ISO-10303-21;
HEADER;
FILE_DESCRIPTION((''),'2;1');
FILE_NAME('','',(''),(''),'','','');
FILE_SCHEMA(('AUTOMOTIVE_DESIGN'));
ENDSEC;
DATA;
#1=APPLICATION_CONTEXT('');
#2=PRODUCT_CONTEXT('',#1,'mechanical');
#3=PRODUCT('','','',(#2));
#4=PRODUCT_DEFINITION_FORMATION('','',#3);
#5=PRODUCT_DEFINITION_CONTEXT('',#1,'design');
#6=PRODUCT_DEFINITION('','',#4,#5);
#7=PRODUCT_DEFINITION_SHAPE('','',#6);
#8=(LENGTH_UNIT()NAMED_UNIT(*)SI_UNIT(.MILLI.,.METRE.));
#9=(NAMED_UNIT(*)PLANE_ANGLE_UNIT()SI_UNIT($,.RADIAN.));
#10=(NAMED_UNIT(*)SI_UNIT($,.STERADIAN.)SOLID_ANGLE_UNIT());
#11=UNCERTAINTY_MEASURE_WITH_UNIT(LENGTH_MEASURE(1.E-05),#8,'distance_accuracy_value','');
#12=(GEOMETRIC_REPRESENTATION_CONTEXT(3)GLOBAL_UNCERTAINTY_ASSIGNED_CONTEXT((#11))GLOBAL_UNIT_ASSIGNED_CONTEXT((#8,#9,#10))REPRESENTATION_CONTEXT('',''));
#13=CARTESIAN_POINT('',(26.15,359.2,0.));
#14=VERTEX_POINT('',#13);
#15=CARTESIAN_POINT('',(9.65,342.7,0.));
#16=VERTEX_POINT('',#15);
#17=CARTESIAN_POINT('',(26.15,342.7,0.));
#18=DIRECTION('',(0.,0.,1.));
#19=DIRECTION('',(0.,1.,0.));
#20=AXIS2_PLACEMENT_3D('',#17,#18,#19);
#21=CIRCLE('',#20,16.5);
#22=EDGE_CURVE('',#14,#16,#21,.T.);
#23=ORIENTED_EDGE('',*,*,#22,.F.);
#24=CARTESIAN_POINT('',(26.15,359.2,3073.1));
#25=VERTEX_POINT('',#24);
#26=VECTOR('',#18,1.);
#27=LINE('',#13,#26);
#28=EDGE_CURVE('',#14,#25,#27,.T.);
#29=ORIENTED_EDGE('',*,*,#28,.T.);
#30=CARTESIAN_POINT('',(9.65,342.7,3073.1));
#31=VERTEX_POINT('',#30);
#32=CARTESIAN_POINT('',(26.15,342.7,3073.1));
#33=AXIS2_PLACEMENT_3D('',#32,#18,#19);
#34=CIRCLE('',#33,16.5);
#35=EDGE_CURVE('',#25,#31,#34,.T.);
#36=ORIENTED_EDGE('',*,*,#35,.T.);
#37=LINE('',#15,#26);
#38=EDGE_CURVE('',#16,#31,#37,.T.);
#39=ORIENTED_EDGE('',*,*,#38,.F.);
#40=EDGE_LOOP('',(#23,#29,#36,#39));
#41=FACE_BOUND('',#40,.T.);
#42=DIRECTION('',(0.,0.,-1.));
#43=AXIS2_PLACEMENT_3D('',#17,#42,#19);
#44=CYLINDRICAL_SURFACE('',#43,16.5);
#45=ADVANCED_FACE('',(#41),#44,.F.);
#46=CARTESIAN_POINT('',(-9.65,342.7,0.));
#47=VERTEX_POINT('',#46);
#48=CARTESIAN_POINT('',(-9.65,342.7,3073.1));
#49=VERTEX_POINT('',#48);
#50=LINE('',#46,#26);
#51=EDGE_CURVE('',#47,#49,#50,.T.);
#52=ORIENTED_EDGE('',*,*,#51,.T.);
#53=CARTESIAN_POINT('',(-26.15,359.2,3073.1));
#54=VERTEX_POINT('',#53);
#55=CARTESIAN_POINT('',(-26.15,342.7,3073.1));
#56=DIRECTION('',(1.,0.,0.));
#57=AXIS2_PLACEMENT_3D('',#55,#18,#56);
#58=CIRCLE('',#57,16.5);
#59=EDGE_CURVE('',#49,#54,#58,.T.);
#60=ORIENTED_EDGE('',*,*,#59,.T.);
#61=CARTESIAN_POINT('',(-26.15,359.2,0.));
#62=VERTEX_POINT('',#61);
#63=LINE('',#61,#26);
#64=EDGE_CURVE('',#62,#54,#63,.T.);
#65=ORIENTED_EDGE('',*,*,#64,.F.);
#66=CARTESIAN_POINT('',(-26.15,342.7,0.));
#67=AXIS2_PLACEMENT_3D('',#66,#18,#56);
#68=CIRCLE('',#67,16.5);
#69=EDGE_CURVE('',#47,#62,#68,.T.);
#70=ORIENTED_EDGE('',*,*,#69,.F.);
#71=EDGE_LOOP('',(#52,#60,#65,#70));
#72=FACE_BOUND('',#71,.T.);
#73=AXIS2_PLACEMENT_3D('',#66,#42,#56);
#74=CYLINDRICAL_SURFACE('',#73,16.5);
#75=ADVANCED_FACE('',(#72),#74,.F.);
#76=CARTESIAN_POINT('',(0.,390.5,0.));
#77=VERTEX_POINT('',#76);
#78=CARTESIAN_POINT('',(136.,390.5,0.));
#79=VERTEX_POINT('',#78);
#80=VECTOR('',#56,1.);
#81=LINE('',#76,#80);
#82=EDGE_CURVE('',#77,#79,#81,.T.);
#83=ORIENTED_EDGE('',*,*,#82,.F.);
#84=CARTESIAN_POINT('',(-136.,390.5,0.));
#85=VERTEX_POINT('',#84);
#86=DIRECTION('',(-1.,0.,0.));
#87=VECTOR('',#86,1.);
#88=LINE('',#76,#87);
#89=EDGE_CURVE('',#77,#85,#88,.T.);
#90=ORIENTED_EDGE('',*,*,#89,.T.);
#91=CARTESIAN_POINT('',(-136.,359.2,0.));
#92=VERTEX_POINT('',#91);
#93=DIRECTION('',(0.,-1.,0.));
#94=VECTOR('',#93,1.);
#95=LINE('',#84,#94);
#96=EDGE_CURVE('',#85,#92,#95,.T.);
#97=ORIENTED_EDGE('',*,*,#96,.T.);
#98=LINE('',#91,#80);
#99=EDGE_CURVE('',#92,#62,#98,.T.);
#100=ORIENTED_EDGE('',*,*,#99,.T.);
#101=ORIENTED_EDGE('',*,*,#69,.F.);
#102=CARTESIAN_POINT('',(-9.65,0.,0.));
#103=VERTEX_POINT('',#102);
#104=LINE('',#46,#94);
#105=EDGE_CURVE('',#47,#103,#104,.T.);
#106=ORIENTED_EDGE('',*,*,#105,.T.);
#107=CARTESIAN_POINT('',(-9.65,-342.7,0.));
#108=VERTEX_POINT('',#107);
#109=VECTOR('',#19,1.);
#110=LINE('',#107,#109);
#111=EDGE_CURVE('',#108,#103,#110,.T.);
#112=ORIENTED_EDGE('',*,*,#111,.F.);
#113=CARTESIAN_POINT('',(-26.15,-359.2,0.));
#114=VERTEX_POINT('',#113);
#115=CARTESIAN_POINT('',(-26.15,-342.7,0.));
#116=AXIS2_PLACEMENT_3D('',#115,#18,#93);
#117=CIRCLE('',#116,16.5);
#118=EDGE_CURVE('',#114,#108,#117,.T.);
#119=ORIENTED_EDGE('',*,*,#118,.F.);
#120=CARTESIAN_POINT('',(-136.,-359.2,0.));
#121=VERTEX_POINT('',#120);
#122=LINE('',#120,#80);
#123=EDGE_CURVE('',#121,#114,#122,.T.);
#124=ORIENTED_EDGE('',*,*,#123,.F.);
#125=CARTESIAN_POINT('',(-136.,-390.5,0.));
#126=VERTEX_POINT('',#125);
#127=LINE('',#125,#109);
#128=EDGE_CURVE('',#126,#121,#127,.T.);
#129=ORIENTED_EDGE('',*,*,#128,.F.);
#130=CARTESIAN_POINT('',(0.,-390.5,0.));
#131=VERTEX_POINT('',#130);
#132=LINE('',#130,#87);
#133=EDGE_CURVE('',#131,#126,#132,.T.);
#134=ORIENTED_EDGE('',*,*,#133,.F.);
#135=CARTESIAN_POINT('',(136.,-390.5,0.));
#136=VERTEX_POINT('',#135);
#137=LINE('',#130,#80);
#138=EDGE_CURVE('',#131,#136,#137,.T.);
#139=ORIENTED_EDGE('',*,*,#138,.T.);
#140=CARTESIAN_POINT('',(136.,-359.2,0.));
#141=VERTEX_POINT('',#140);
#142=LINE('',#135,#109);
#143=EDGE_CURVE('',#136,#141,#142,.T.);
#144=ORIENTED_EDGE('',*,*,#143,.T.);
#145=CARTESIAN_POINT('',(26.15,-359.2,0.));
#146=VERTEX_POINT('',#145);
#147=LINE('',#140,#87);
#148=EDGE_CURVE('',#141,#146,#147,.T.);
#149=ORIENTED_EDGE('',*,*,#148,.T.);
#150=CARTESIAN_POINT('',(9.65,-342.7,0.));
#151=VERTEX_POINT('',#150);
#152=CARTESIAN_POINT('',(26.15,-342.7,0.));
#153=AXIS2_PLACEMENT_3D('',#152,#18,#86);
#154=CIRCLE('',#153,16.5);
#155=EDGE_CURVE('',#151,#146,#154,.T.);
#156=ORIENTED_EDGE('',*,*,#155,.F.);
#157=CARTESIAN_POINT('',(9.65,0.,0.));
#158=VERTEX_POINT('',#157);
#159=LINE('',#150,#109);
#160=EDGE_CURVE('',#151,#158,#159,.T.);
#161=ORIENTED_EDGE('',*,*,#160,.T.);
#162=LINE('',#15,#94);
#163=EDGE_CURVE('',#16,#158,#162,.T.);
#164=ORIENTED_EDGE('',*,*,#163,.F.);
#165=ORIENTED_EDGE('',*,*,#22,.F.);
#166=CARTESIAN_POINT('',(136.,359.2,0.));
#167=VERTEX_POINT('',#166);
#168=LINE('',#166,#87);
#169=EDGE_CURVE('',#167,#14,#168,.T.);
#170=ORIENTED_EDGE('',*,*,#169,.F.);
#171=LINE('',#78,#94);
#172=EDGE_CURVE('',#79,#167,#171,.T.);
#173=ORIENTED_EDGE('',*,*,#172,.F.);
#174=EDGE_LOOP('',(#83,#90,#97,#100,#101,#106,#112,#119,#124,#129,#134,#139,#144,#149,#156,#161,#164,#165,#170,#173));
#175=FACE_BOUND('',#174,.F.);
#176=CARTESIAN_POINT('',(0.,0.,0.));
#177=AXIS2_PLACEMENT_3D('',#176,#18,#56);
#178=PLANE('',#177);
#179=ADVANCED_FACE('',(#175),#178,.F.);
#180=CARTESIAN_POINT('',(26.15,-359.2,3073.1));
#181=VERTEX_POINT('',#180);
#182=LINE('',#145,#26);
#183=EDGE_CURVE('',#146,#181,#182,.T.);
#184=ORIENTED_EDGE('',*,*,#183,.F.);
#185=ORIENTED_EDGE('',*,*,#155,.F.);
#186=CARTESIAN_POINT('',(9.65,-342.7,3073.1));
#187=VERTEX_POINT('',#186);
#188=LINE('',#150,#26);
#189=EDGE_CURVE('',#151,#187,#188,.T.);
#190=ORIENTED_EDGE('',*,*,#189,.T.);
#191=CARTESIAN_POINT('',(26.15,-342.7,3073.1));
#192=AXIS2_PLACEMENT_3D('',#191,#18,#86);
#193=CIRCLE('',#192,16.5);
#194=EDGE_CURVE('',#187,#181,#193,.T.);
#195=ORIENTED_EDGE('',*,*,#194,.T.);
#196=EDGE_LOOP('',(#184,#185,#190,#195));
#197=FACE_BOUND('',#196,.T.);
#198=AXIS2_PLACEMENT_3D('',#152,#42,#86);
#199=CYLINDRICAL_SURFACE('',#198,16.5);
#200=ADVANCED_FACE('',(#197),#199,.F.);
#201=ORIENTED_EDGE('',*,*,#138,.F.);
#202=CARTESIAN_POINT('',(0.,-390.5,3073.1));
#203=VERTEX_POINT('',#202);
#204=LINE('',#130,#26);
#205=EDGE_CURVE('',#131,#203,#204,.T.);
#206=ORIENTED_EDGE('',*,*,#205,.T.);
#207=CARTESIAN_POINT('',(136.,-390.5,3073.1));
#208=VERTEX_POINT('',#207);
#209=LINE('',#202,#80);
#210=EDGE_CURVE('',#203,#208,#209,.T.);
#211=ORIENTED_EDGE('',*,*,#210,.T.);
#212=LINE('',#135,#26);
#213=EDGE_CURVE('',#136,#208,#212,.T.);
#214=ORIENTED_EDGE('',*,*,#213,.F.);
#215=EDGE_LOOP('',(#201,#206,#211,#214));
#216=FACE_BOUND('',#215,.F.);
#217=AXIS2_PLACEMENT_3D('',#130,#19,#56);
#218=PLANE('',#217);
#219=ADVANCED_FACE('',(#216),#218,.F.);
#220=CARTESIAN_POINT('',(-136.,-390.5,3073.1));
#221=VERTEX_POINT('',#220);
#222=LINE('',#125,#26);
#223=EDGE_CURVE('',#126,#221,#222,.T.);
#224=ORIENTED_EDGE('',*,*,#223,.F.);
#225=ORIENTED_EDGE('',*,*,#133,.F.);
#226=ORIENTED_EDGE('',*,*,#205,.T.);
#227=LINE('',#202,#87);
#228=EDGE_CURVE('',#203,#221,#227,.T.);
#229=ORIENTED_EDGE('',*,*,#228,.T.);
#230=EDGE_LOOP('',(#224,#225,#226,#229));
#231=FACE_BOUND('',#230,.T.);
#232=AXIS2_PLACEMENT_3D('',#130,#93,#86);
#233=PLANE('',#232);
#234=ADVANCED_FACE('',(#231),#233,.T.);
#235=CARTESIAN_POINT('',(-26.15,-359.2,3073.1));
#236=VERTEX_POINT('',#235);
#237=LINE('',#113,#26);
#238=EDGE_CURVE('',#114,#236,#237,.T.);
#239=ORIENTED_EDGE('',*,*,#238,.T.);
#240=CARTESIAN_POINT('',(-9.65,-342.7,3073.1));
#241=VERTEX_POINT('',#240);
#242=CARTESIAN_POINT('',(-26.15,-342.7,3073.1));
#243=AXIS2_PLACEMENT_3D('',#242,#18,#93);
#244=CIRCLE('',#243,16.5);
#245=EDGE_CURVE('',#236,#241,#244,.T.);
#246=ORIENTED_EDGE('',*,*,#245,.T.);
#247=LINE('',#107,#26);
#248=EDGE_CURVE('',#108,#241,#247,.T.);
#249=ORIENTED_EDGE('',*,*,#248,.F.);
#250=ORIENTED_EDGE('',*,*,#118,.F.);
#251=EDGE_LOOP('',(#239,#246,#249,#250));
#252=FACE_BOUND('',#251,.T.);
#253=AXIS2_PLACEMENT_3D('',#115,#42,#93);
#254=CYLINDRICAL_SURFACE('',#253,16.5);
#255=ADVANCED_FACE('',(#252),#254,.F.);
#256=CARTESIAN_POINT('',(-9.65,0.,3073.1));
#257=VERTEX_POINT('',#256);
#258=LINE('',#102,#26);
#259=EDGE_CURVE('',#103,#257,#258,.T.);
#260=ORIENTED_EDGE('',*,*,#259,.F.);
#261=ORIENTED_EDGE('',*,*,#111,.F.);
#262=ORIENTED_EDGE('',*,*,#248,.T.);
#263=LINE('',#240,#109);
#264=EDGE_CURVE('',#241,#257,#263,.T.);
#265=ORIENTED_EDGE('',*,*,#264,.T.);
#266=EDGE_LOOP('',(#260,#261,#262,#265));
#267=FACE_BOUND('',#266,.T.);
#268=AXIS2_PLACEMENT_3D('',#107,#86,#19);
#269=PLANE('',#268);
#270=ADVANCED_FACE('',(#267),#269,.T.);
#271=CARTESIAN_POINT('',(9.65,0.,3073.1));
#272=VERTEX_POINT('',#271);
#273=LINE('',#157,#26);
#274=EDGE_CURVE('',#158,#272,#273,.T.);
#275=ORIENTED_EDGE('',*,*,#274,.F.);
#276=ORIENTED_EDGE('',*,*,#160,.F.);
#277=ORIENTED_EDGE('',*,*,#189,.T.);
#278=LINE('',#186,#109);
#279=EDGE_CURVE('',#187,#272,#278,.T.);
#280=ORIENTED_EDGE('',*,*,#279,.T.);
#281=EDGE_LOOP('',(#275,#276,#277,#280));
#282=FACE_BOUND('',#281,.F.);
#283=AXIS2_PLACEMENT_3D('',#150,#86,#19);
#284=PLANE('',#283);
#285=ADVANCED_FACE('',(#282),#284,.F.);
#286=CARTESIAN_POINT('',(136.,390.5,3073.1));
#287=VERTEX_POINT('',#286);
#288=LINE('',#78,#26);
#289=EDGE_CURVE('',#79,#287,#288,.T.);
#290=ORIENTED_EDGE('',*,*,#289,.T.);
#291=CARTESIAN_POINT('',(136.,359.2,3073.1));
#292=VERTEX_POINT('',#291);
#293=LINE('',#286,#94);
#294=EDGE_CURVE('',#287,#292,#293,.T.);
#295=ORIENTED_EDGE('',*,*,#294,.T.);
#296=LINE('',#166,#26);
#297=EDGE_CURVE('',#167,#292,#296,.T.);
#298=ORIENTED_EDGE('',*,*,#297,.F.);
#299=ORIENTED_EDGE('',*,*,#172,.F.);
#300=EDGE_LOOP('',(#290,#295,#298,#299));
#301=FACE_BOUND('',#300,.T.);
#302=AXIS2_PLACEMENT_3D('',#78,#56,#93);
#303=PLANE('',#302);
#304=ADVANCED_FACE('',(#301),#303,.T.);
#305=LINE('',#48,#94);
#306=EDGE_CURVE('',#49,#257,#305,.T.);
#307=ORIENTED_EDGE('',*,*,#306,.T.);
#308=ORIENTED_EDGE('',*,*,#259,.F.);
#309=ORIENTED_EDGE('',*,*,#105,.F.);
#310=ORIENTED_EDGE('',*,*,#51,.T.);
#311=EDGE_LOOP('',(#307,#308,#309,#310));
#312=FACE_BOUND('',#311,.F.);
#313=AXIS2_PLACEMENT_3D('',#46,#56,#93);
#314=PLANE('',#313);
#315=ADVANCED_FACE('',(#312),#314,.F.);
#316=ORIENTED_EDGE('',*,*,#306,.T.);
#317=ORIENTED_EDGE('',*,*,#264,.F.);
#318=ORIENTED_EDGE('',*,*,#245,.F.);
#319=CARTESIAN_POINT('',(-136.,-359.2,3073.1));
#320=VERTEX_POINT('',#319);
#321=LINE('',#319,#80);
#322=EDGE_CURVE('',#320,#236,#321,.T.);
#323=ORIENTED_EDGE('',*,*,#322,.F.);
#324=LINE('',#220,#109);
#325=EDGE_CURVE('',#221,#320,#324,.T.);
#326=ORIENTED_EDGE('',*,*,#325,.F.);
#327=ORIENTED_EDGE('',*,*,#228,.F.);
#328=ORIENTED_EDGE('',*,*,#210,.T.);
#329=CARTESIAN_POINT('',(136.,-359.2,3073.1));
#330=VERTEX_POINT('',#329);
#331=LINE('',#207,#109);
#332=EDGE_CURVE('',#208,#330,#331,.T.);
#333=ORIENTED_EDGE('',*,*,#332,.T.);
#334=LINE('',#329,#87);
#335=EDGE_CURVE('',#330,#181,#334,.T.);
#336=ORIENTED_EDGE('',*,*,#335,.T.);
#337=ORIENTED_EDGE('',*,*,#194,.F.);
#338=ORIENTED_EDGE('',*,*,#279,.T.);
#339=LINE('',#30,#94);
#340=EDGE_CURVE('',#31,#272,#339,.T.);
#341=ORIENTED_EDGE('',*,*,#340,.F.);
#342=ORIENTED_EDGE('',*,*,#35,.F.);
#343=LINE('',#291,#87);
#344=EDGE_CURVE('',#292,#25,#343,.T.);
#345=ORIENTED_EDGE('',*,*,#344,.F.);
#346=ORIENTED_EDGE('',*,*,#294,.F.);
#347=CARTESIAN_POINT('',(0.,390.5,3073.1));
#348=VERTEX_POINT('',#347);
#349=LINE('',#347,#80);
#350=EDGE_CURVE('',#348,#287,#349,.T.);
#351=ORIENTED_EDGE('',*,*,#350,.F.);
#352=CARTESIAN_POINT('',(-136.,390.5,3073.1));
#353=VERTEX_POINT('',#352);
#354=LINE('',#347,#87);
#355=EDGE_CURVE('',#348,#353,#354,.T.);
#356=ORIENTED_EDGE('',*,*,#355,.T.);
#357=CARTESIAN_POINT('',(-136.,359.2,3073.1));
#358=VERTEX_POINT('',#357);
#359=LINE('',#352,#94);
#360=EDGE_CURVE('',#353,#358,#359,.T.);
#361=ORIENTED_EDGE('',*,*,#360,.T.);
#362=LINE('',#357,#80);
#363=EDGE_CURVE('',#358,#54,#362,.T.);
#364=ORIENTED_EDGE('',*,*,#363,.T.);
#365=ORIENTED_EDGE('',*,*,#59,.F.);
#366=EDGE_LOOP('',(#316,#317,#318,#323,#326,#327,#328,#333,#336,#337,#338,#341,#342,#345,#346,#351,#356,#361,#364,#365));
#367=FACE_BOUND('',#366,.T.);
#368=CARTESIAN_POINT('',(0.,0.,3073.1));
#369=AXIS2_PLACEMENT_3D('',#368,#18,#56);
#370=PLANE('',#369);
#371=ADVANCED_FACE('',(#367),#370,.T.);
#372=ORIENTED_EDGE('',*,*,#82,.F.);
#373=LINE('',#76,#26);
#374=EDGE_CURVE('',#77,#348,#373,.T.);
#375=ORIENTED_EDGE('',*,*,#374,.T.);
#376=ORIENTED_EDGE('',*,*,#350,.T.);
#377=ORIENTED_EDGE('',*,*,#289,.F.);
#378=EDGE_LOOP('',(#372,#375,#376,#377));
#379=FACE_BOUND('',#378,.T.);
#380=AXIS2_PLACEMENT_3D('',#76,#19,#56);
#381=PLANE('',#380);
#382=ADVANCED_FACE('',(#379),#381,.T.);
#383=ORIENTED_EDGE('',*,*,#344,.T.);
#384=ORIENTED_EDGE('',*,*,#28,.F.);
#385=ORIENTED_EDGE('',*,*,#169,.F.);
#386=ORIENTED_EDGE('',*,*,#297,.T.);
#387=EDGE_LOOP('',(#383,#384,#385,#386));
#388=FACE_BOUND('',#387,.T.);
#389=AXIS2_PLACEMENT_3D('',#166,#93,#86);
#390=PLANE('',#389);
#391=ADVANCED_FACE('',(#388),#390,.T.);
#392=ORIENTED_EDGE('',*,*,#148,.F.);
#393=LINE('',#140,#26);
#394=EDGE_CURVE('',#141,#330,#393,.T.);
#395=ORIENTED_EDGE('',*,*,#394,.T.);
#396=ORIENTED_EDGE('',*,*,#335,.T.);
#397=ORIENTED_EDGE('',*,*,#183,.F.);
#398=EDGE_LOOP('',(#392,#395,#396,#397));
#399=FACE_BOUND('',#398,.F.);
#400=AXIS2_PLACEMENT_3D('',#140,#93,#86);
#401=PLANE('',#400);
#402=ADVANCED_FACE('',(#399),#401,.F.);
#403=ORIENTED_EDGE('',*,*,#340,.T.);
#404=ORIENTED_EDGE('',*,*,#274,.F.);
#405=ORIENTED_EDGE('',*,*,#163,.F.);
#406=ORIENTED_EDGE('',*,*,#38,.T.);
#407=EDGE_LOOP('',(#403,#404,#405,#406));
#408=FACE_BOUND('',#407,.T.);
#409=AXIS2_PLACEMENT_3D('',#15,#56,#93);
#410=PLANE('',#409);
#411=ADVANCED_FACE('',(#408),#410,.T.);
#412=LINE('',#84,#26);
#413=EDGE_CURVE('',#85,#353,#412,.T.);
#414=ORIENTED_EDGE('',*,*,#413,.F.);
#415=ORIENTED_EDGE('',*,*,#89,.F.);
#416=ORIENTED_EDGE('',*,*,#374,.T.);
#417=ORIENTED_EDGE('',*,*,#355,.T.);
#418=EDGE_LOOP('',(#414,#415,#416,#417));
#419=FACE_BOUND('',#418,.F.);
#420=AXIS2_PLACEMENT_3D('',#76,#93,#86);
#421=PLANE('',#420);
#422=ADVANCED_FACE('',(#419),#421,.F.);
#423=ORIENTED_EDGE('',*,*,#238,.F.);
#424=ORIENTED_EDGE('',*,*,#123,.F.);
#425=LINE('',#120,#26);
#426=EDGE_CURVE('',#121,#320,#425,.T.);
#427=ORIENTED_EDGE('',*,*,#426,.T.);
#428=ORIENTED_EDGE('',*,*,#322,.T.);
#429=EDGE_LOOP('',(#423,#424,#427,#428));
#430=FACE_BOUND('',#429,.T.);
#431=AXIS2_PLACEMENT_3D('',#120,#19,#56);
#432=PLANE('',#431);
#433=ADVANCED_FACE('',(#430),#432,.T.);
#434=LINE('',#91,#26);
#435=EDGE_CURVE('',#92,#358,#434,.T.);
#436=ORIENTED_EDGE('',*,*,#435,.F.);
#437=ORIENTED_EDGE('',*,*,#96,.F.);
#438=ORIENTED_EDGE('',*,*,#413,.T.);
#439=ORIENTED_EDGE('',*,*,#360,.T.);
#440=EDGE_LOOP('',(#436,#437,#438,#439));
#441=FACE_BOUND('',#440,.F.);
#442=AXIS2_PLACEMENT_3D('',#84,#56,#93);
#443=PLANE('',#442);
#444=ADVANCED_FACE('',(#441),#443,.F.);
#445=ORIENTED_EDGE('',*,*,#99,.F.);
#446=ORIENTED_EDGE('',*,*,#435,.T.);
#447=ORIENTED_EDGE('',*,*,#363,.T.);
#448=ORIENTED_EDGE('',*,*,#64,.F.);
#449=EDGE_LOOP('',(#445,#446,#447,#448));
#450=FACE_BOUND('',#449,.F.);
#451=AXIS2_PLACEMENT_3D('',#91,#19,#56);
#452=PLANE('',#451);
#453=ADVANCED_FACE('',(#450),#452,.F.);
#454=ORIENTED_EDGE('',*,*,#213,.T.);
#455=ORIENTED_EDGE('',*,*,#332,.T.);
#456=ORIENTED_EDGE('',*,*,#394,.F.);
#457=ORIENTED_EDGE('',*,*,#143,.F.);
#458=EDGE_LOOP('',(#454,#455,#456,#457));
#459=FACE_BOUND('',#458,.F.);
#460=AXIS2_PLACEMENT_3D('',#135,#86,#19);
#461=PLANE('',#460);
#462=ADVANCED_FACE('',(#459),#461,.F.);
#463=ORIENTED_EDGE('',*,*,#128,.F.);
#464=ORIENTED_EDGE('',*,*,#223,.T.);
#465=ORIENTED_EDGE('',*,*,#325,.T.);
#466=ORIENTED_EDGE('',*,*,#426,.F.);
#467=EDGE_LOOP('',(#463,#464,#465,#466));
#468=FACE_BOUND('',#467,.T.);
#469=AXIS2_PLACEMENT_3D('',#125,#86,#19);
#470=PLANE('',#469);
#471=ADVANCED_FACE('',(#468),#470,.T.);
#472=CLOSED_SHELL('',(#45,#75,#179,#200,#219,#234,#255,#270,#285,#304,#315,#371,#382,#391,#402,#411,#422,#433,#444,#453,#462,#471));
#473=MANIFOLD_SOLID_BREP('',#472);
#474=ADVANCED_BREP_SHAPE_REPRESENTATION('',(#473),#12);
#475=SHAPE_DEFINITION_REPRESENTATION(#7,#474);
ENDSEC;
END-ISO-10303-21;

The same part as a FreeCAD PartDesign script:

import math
import FreeCAD as App
import Part
import Sketcher

V = App.Vector

doc = App.newDocument("Part")
params = doc.addObject("Spreadsheet::Sheet", "Params")
for row, (alias, value) in enumerate([
    ("sketch1_radius", "16.5 mm"),
    ("sketch1_height", "31.3 mm"),
    ("pad1_length", "3073.1 mm"),
], start=1):
    params.set(f"A{row}", alias)
    params.set(f"B{row}", "=" + value)
    params.setAlias(f"B{row}", alias)

body = doc.addObject("PartDesign::Body", "Body")

# Sketch on XY plane
sketch1 = body.newObject("Sketcher::SketchObject", "Sketch")
sketch1.AttachmentSupport = (doc.getObject("XY_Plane"), [""])
sketch1.MapMode = "FlatFace"
sketch1.addGeometry([
    Part.LineSegment(V(-136, -359, 0), V(-136, -390, 0)),  # 0
    Part.LineSegment(V(-136, -390, 0), V(136, -390, 0)),  # 1
    Part.LineSegment(V(136, -390, 0), V(136, -359, 0)),  # 2
    Part.LineSegment(V(136, -359, 0), V(26, -359, 0)),  # 3
    Part.ArcOfCircle(Part.Circle(V(26, -343, 0), V(0, 0, 1), 16), math.radians(180), math.radians(270)),  # 4
    Part.LineSegment(V(10, -343, 0), V(10, 343, 0)),  # 5
    Part.ArcOfCircle(Part.Circle(V(26, 343, 0), V(0, 0, 1), 16), math.radians(90), math.radians(180)),  # 6
    Part.LineSegment(V(26, 359, 0), V(136, 359, 0)),  # 7
    Part.LineSegment(V(136, 359, 0), V(136, 390, 0)),  # 8
    Part.LineSegment(V(136, 390, 0), V(-136, 390, 0)),  # 9
    Part.LineSegment(V(-136, 390, 0), V(-136, 359, 0)),  # 10
    Part.LineSegment(V(-136, 359, 0), V(-26, 359, 0)),  # 11
    Part.ArcOfCircle(Part.Circle(V(-26, 343, 0), V(0, 0, 1), 16), math.radians(0), math.radians(90)),  # 12
    Part.LineSegment(V(-10, 343, 0), V(-10, -343, 0)),  # 13
    Part.ArcOfCircle(Part.Circle(V(-26, -343, 0), V(0, 0, 1), 16), math.radians(-90), math.radians(0)),  # 14
    Part.LineSegment(V(-26, -359, 0), V(-136, -359, 0)),  # 15
], False)
sketch1.addConstraint([
    Sketcher.Constraint("Coincident", 0, 2, 1, 1),
    Sketcher.Constraint("Coincident", 1, 2, 2, 1),
    Sketcher.Constraint("Coincident", 2, 2, 3, 1),
    Sketcher.Constraint("Tangent", 3, 2, 4, 2),
    Sketcher.Constraint("Tangent", 4, 1, 5, 1),
    Sketcher.Constraint("Tangent", 5, 2, 6, 2),
    Sketcher.Constraint("Tangent", 6, 1, 7, 1),
    Sketcher.Constraint("Coincident", 7, 2, 8, 1),
    Sketcher.Constraint("Coincident", 8, 2, 9, 1),
    Sketcher.Constraint("Coincident", 9, 2, 10, 1),
    Sketcher.Constraint("Coincident", 10, 2, 11, 1),
    Sketcher.Constraint("Tangent", 11, 2, 12, 2),
    Sketcher.Constraint("Tangent", 12, 1, 13, 1),
    Sketcher.Constraint("Tangent", 13, 2, 14, 2),
    Sketcher.Constraint("Tangent", 14, 1, 15, 1),
    Sketcher.Constraint("Coincident", 15, 2, 0, 1),
    Sketcher.Constraint("Vertical", 0),
    Sketcher.Constraint("Horizontal", 1),
    Sketcher.Constraint("Vertical", 2),
    Sketcher.Constraint("Horizontal", 3),
    Sketcher.Constraint("Vertical", 5),
    Sketcher.Constraint("Horizontal", 7),
    Sketcher.Constraint("Vertical", 8),
    Sketcher.Constraint("Horizontal", 9),
    Sketcher.Constraint("Vertical", 10),
    Sketcher.Constraint("Horizontal", 11),
    Sketcher.Constraint("Vertical", 13),
    Sketcher.Constraint("Horizontal", 15),
    Sketcher.Constraint("Equal", 4, 6),
    Sketcher.Constraint("Equal", 6, 12),
    Sketcher.Constraint("Equal", 12, 14),
    Sketcher.Constraint("Symmetric", 4, 3, 12, 3, -1, 1),
    Sketcher.Constraint("Symmetric", 0, 2, 8, 2, -1, 1),
    Sketcher.Constraint("Symmetric", 7, 2, 10, 2, -2),
    Sketcher.Constraint("Symmetric", 2, 2, 15, 2, -2),
    Sketcher.Constraint("Radius", 4, 16.5),
    Sketcher.Constraint("DistanceY", 0, 2, 0, 1, 31.3),
    Sketcher.Constraint("DistanceX", 0, 2, -1, 1, 136.0),
    Sketcher.Constraint("DistanceY", 0, 2, -1, 1, 390.5),
    Sketcher.Constraint("DistanceX", -1, 1, 4, 1, 9.65),
])
sketch1.setExpression("Constraints[35]", "Params.sketch1_radius")
sketch1.setExpression("Constraints[36]", "Params.sketch1_height")
pad1 = body.newObject("PartDesign::Pad", "Pad")
pad1.Profile = sketch1
pad1.setExpression("Length", "Params.pad1_length")

doc.recompute()
